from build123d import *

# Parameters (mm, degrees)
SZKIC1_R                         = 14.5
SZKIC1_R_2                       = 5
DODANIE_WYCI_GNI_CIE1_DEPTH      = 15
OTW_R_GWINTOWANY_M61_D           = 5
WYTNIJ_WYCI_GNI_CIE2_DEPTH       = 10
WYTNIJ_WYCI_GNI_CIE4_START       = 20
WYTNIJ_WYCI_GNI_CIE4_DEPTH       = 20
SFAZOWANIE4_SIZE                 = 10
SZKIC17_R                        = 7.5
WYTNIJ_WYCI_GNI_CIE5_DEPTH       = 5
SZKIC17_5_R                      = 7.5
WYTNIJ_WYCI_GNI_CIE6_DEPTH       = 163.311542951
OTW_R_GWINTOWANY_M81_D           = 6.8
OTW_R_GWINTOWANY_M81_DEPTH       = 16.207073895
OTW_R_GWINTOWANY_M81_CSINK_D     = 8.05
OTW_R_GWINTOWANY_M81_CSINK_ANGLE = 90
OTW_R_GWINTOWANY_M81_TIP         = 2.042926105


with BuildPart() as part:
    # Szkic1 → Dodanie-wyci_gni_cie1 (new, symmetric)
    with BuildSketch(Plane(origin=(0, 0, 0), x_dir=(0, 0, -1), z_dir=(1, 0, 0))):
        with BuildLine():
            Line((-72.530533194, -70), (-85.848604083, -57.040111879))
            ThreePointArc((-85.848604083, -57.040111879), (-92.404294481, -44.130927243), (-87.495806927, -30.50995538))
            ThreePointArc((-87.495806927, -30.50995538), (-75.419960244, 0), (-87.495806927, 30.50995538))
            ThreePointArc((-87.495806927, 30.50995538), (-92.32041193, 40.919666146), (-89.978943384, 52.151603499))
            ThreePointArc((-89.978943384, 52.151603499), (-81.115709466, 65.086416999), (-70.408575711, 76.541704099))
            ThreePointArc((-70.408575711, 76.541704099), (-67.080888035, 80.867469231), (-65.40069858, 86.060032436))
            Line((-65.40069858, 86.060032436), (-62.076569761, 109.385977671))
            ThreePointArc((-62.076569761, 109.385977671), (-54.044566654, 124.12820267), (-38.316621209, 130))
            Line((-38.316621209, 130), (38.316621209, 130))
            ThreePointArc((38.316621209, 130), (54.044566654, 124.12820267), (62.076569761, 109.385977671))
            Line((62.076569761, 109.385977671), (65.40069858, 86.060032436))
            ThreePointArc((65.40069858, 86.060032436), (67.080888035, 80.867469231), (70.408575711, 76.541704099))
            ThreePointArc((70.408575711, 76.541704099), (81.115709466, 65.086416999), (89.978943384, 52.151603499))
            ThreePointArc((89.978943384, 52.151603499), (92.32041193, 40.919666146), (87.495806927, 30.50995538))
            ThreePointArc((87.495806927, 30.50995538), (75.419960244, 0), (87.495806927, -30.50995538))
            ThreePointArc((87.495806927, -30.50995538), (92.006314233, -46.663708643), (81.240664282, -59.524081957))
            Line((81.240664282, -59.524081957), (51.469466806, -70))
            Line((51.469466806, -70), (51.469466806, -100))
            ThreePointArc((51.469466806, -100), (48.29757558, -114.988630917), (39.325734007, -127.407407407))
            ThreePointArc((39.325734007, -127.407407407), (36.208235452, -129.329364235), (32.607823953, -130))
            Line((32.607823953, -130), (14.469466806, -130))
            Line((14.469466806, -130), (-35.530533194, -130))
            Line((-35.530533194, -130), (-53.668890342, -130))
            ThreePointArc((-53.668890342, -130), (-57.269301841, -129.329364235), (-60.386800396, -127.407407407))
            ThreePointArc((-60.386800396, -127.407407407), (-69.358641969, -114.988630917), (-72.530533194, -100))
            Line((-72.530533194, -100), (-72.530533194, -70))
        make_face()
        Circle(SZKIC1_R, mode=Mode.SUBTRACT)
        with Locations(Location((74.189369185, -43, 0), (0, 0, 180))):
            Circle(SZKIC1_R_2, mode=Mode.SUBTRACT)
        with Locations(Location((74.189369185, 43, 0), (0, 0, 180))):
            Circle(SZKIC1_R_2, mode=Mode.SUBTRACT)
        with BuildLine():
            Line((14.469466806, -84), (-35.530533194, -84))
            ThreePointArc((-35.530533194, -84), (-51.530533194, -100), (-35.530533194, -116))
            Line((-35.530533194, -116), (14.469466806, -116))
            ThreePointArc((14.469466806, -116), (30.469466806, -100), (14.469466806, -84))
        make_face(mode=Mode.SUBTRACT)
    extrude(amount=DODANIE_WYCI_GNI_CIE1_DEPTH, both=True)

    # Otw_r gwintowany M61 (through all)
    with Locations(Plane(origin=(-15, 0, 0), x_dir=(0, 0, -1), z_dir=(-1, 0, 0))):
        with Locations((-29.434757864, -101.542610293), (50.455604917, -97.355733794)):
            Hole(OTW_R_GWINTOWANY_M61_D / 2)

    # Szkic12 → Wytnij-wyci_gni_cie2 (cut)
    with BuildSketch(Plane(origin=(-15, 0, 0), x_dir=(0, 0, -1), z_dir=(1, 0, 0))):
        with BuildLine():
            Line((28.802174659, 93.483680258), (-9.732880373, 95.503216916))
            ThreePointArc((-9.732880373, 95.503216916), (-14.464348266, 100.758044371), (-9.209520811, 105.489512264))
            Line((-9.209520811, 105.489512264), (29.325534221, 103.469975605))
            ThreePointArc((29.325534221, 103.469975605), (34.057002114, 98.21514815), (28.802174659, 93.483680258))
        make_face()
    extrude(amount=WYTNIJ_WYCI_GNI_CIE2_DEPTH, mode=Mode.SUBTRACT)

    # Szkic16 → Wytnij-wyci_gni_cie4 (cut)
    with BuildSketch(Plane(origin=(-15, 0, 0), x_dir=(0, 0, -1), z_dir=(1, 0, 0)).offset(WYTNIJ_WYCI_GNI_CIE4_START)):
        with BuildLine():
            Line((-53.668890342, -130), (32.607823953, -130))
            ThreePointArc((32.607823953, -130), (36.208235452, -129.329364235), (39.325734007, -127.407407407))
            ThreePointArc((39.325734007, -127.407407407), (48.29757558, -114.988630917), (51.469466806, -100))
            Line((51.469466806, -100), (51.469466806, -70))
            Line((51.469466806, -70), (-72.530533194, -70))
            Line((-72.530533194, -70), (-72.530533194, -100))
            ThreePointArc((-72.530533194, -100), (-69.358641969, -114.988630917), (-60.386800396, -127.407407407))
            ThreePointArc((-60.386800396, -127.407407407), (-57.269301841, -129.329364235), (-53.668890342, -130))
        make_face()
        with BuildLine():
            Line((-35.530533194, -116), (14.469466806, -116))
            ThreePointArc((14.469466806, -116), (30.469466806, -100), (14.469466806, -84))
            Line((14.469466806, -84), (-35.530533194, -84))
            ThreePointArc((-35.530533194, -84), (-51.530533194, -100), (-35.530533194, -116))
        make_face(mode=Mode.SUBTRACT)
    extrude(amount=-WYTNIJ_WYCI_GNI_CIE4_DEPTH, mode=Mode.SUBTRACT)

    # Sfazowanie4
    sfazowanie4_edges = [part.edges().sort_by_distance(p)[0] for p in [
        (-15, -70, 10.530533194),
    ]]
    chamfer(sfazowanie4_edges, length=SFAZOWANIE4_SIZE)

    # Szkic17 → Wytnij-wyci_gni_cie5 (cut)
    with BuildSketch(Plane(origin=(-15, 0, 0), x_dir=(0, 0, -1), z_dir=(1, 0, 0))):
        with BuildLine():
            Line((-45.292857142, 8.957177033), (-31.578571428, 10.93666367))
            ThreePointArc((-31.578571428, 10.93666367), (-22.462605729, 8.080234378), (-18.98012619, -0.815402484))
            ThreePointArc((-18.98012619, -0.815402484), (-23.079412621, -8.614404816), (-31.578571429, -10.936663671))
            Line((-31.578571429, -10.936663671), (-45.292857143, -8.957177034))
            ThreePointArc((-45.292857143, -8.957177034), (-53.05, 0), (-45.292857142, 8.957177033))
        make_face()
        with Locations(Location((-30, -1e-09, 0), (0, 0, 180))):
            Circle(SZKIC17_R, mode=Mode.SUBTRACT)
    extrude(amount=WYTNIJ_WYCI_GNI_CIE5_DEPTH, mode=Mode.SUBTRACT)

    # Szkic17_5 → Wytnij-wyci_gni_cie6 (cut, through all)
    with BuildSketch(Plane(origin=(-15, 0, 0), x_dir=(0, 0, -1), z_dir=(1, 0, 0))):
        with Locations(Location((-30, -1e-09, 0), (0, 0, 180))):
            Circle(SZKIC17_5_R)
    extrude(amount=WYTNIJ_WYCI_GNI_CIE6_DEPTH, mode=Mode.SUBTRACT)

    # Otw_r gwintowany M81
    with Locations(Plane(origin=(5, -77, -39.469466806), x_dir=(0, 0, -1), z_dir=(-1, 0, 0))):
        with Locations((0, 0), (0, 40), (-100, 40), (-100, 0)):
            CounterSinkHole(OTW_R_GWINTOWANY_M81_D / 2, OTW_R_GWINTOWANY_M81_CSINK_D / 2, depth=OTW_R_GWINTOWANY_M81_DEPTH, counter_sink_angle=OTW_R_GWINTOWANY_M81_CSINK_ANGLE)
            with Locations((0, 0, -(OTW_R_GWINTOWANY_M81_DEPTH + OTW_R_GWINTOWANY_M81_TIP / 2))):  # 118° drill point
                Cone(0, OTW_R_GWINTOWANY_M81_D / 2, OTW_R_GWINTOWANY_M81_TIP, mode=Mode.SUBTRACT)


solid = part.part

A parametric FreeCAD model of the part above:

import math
import FreeCAD as App
import Part
import Sketcher
Q = App.Units.Quantity


def edges_at(feature, points):
    """Names of the edges that pass closest to the given points."""
    edges = feature.Shape.Edges
    near = lambda p: min(range(len(edges)), key=lambda i: edges[i].distToShape(Part.Vertex(*p))[0])
    return sorted({f"Edge{near(p) + 1}" for p in points})

doc = App.newDocument("Part")
body = doc.addObject("PartDesign::Body", "Body")

sketch1 = body.newObject("Sketcher::SketchObject", "Sketch")
sketch1.AttachmentSupport = (doc.getObject("YZ_Plane"), [""])
sketch1.MapMode = "FlatFace"
sketch1.addGeometry([
    Part.LineSegment(App.Vector(-57, 86, 0), App.Vector(-70, 73, 0)),
    Part.LineSegment(App.Vector(-70, 73, 0), App.Vector(-100, 73, 0)),
    Part.ArcOfCircle(Part.Circle(App.Vector(-100, 36, 0), App.Vector(0, 0, 1), 37), math.radians(90), math.radians(138)),
    Part.ArcOfCircle(Part.Circle(App.Vector(-120, 54, 0), App.Vector(0, 0, 1), 10), math.radians(138), math.radians(180)),
    Part.LineSegment(App.Vector(-130, 54, 0), App.Vector(-130, -33, 0)),
    Part.ArcOfCircle(Part.Circle(App.Vector(-120, -33, 0), App.Vector(0, 0, 1), 10), math.radians(-180), math.radians(-138)),
    Part.ArcOfCircle(Part.Circle(App.Vector(-100, -14, 0), App.Vector(0, 0, 1), 37), math.radians(-138), math.radians(-90)),
    Part.LineSegment(App.Vector(-100, -51, 0), App.Vector(-70, -51, 0)),
    Part.LineSegment(App.Vector(-70, -51, 0), App.Vector(-60, -81, 0)),
    Part.ArcOfCircle(Part.Circle(App.Vector(-43, -74, 0), App.Vector(0, 0, 1), 18), math.radians(-158), math.radians(-47)),
    Part.ArcOfCircle(Part.Circle(App.Vector(0, -120, 0), App.Vector(0, 0, 1), 45), math.radians(47), math.radians(133)),
    Part.ArcOfCircle(Part.Circle(App.Vector(43, -74, 0), App.Vector(0, 0, 1), 18), math.radians(-133), math.radians(-60)),
    Part.ArcOfCircle(Part.Circle(App.Vector(0, 0, 0), App.Vector(0, 0, 1), 104), math.radians(-59.9), math.radians(-42.61)),
    Part.ArcOfCircle(Part.Circle(App.Vector(88, -81, 0), App.Vector(0, 0, 1), 16), math.radians(98), math.radians(137)),
    Part.LineSegment(App.Vector(86, -65, 0), App.Vector(109, -62, 0)),
    Part.ArcOfCircle(Part.Circle(App.Vector(106, -38, 0), App.Vector(0, 0, 1), 24), math.radians(-82), math.radians(0)),
    Part.LineSegment(App.Vector(130, -38, 0), App.Vector(130, 38, 0)),
    Part.ArcOfCircle(Part.Circle(App.Vector(106, 38, 0), App.Vector(0, 0, 1), 24), math.radians(0), math.radians(82)),
    Part.LineSegment(App.Vector(109, 62, 0), App.Vector(86, 65, 0)),
    Part.ArcOfCircle(Part.Circle(App.Vector(88, 81, 0), App.Vector(0, 0, 1), 16), math.radians(-137), math.radians(-98)),
    Part.ArcOfCircle(Part.Circle(App.Vector(0, 0, 0), App.Vector(0, 0, 1), 104), math.radians(42.61), math.radians(59.9)),
    Part.ArcOfCircle(Part.Circle(App.Vector(43, 74, 0), App.Vector(0, 0, 1), 18), math.radians(60), math.radians(133)),
    Part.ArcOfCircle(Part.Circle(App.Vector(0, 120, 0), App.Vector(0, 0, 1), 45), math.radians(-133), math.radians(-47)),
    Part.ArcOfCircle(Part.Circle(App.Vector(-43, 74, 0), App.Vector(0, 0, 1), 18), math.radians(47), math.radians(140)),
    Part.Circle(App.Vector(-43, -74, 0), App.Vector(0, 0, 1), 5),
    Part.ArcOfCircle(Part.Circle(App.Vector(-100, -14, 0), App.Vector(0, 0, 1), 16), math.radians(180), math.radians(360)),
    Part.LineSegment(App.Vector(-116, -14, 0), App.Vector(-116, 36, 0)),
    Part.ArcOfCircle(Part.Circle(App.Vector(-100, 36, 0), App.Vector(0, 0, 1), 16), math.radians(0), math.radians(180)),
    Part.LineSegment(App.Vector(-84, 36, 0), App.Vector(-84, -14, 0)),
    Part.Circle(App.Vector(43, -74, 0), App.Vector(0, 0, 1), 5),
    Part.Circle(App.Vector(0, 0, 0), App.Vector(0, 0, 1), 14),
], False)
sketch1.addConstraint([
    Sketcher.Constraint("Coincident", 0, 2, 1, 1),
    Sketcher.Constraint("Tangent", 1, 2, 2, 1),
    Sketcher.Constraint("Tangent", 2, 2, 3, 1),
    Sketcher.Constraint("Tangent", 3, 2, 4, 1),
    Sketcher.Constraint("Tangent", 4, 2, 5, 1),
    Sketcher.Constraint("Tangent", 5, 2, 6, 1),
    Sketcher.Constraint("Tangent", 6, 2, 7, 1),
    Sketcher.Constraint("Coincident", 7, 2, 8, 1),
    Sketcher.Constraint("Coincident", 8, 2, 9, 1),
    Sketcher.Constraint("Coincident", 9, 2, 10, 2),
    Sketcher.Constraint("Tangent", 10, 1, 11, 1),
    Sketcher.Constraint("Tangent", 11, 2, 12, 1),
    Sketcher.Constraint("Tangent", 12, 2, 13, 2),
    Sketcher.Constraint("Tangent", 13, 1, 14, 1),
    Sketcher.Constraint("Tangent", 14, 2, 15, 1),
    Sketcher.Constraint("Tangent", 15, 2, 16, 1),
    Sketcher.Constraint("Tangent", 16, 2, 17, 1),
    Sketcher.Constraint("Tangent", 17, 2, 18, 1),
    Sketcher.Constraint("Tangent", 18, 2, 19, 2),
    Sketcher.Constraint("Tangent", 19, 1, 20, 1),
    Sketcher.Constraint("Tangent", 20, 2, 21, 1),
    Sketcher.Constraint("Tangent", 21, 2, 22, 2),
    Sketcher.Constraint("Tangent", 22, 1, 23, 1),
    Sketcher.Constraint("Coincident", 23, 2, 0, 1),
    Sketcher.Constraint("Tangent", 25, 1, 26, 1),
    Sketcher.Constraint("Tangent", 26, 2, 27, 2),
    Sketcher.Constraint("Tangent", 27, 1, 28, 1),
    Sketcher.Constraint("Tangent", 28, 2, 25, 2),
    Sketcher.Constraint("Horizontal", 1),
    Sketcher.Constraint("Vertical", 4),
    Sketcher.Constraint("Horizontal", 7),
    Sketcher.Constraint("Vertical", 16),
    Sketcher.Constraint("Vertical", 26),
    Sketcher.Constraint("Vertical", 28),
    Sketcher.Constraint("Coincident", 12, 3, -1, 1),
    Sketcher.Constraint("Coincident", 20, 3, -1, 1),
    Sketcher.Constraint("Coincident", 30, 3, -1, 1),
    Sketcher.Constraint("Coincident", 25, 3, 6, 3),
    Sketcher.Constraint("Coincident", 27, 3, 2, 3),
    Sketcher.Constraint("Coincident", 29, 3, 11, 3),
    Sketcher.Constraint("Equal", 3, 5),
    Sketcher.Constraint("Equal", 2, 6),
    Sketcher.Constraint("Equal", 15, 17),
    Sketcher.Constraint("Equal", 13, 19),
    Sketcher.Constraint("Equal", 12, 20),
    Sketcher.Constraint("Equal", 11, 21),
    Sketcher.Constraint("Equal", 10, 22),
    Sketcher.Constraint("Equal", 21, 23),
    Sketcher.Constraint("Equal", 19, 25),
    Sketcher.Constraint("Equal", 24, 29),
    Sketcher.Constraint("Symmetric", 10, 3, 22, 3, -1, 1),
    Sketcher.Constraint("Symmetric", 21, 3, 24, 3, -1, 1),
    Sketcher.Constraint("Symmetric", 21, 3, 23, 3, -2),
    Sketcher.Constraint("Symmetric", 14, 2, 17, 2, -1),
    Sketcher.Constraint("Horizontal", 13, 3, 8, 2),
    Sketcher.Constraint("Horizontal", 9, 2, 10, 1),
    Sketcher.Constraint("Vertical", 0, 2, 7, 2),
    Sketcher.Constraint("Diameter", 24, Q("10 mm")),
    Sketcher.Constraint("Diameter", 30, Q("29 mm")),
    Sketcher.Constraint("Radius", 2, Q("37 mm")),
    Sketcher.Constraint("Radius", 3, Q("10 mm")),
    Sketcher.Constraint("Radius", 9, Q("18 mm")),
    Sketcher.Constraint("Radius", 12, Q("104 mm")),
    Sketcher.Constraint("Radius", 13, Q("16 mm")),
    Sketcher.Constraint("Radius", 15, Q("24 mm")),
    Sketcher.Constraint("DistanceX", 1, 2, 1, 1, Q("30 mm")),
    Sketcher.Constraint("DistanceY", 26, 1, 26, 2, Q("50 mm")),
    Sketcher.Constraint("Radius", 11, Q("18.25 mm")),
    Sketcher.Constraint("DistanceX", 2, 3, -1, 1, Q("100 mm")),
    Sketcher.Constraint("DistanceX", 3, 3, -1, 1, Q("120 mm")),
    Sketcher.Constraint("DistanceY", 10, 3, -1, 1, Q("120 mm")),
    Sketcher.Constraint("DistanceX", -1, 1, 11, 3, Q("43 mm")),
    Sketcher.Constraint("DistanceX", -1, 1, 15, 3, Q("106 mm")),
    Sketcher.Constraint("DistanceY", -1, 1, 2, 2, Q("60.3868 mm")),
    Sketcher.Constraint("DistanceY", 13, 1, -1, 1, Q("65.400699 mm")),
    Sketcher.Constraint("DistanceY", 17, 2, 21, 3, Q("12.112799 mm")),
    Sketcher.Constraint("Distance", 0, Q("18.583049 mm")),
    Sketcher.Constraint("Distance", 8, Q("31.560562 mm")),
])
pad1 = body.newObject("PartDesign::Pad", "Pad")
pad1.Profile = sketch1
pad1.Length = 30
pad1.Midplane = True

sketch2 = body.newObject("Sketcher::SketchObject", "Sketch001")
sketch2.AttachmentSupport = (doc.getObject("YZ_Plane"), [""])
sketch2.MapMode = "FlatFace"
sketch2.AttachmentOffset = App.Placement(App.Vector(0, 0, -15), App.Rotation())
sketch2.addGeometry([
    Part.Circle(App.Vector(101.5, 29.4, 0), App.Vector(0, 0, 1), 2.5),
    Part.Circle(App.Vector(97.4, -50.5, 0), App.Vector(0, 0, 1), 2.5),
], False)
sketch2.addConstraint([
    Sketcher.Constraint("Equal", 0, 1),
    Sketcher.Constraint("Diameter", 0, Q("5 mm")),
    Sketcher.Constraint("DistanceX", -1, 1, 0, 3, Q("101.54261 mm")),
    Sketcher.Constraint("DistanceY", -1, 1, 0, 3, Q("29.434758 mm")),
    Sketcher.Constraint("DistanceX", -1, 1, 1, 3, Q("97.355734 mm")),
    Sketcher.Constraint("DistanceY", 1, 3, -1, 1, Q("50.455605 mm")),
])
doc.recompute()
hole = body.newObject("PartDesign::Hole", "Hole")
hole.Profile = sketch2
hole.ThreadType = "None"
hole.Diameter = 5
hole.DepthType = "ThroughAll"
hole.Reversed = True

sketch3 = body.newObject("Sketcher::SketchObject", "Sketch002")
sketch3.AttachmentSupport = (doc.getObject("YZ_Plane"), [""])
sketch3.MapMode = "FlatFace"
sketch3.AttachmentOffset = App.Placement(App.Vector(0, 0, -15), App.Rotation())
sketch3.addGeometry([
    Part.LineSegment(App.Vector(96, 10, 0), App.Vector(93, -29, 0)),
    Part.ArcOfCircle(Part.Circle(App.Vector(98, -29, 0), App.Vector(0, 0, 1), 5), math.radians(177), math.radians(357)),
    Part.LineSegment(App.Vector(103, -29, 0), App.Vector(105, 9, 0)),
    Part.ArcOfCircle(Part.Circle(App.Vector(100, 9, 0), App.Vector(0, 0, 1), 5), math.radians(-3), math.radians(177)),
], False)
sketch3.addConstraint([
    Sketcher.Constraint("Tangent", 0, 2, 1, 1),
    Sketcher.Constraint("Tangent", 1, 2, 2, 1),
    Sketcher.Constraint("Tangent", 2, 2, 3, 1),
    Sketcher.Constraint("Tangent", 3, 2, 0, 1),
    Sketcher.Constraint("Equal", 1, 3),
    Sketcher.Constraint("Radius", 1, Q("5 mm")),
    Sketcher.Constraint("Angle", 0, Q("-93 deg")),
    Sketcher.Constraint("DistanceY", -1, 1, 3, 3, Q("9.471201 mm")),
    Sketcher.Constraint("Distance", 0, Q("38.587938 mm")),
    Sketcher.Constraint("DistanceX", -1, 1, 0, 2, Q("93.48368 mm")),
])
pocket1 = body.newObject("PartDesign::Pocket", "Pocket")
pocket1.Profile = sketch3
pocket1.Length = 10
pocket1.Reversed = True

sketch4 = body.newObject("Sketcher::SketchObject", "Sketch003")
sketch4.AttachmentSupport = (doc.getObject("YZ_Plane"), [""])
sketch4.MapMode = "FlatFace"
sketch4.AttachmentOffset = App.Placement(App.Vector(0, 0, 5), App.Rotation())
sketch4.addGeometry([
    Part.LineSegment(App.Vector(-130, 54, 0), App.Vector(-130, -33, 0)),
    Part.ArcOfCircle(Part.Circle(App.Vector(-120, -33, 0), App.Vector(0, 0, 1), 10), math.radians(-180), math.radians(-138)),
    Part.ArcOfCircle(Part.Circle(App.Vector(-100, -14, 0), App.Vector(0, 0, 1), 37), math.radians(-138), math.radians(-90)),
    Part.LineSegment(App.Vector(-100, -51, 0), App.Vector(-70, -51, 0)),
    Part.LineSegment(App.Vector(-70, -51, 0), App.Vector(-70, 73, 0)),
    Part.LineSegment(App.Vector(-70, 73, 0), App.Vector(-100, 73, 0)),
    Part.ArcOfCircle(Part.Circle(App.Vector(-100, 36, 0), App.Vector(0, 0, 1), 37), math.radians(90), math.radians(138)),
    Part.ArcOfCircle(Part.Circle(App.Vector(-120, 54, 0), App.Vector(0, 0, 1), 10), math.radians(138), math.radians(180)),
    Part.LineSegment(App.Vector(-116, -14, 0), App.Vector(-116, 36, 0)),
    Part.ArcOfCircle(Part.Circle(App.Vector(-100, 36, 0), App.Vector(0, 0, 1), 16), math.radians(0), math.radians(180)),
    Part.LineSegment(App.Vector(-84, 36, 0), App.Vector(-84, -14, 0)),
    Part.ArcOfCircle(Part.Circle(App.Vector(-100, -14, 0), App.Vector(0, 0, 1), 16), math.radians(180), math.radians(360)),
], False)
sketch4.addConstraint([
    Sketcher.Constraint("Tangent", 0, 2, 1, 1),
    Sketcher.Constraint("Tangent", 1, 2, 2, 1),
    Sketcher.Constraint("Tangent", 2, 2, 3, 1),
    Sketcher.Constraint("Coincident", 3, 2, 4, 1),
    Sketcher.Constraint("Coincident", 4, 2, 5, 1),
    Sketcher.Constraint("Tangent", 5, 2, 6, 1),
    Sketcher.Constraint("Tangent", 6, 2, 7, 1),
    Sketcher.Constraint("Tangent", 7, 2, 0, 1),
    Sketcher.Constraint("Tangent", 8, 2, 9, 2),
    Sketcher.Constraint("Tangent", 9, 1, 10, 1),
    Sketcher.Constraint("Tangent", 10, 2, 11, 2),
    Sketcher.Constraint("Tangent", 11, 1, 8, 1),
    Sketcher.Constraint("Vertical", 0),
    Sketcher.Constraint("Horizontal", 3),
    Sketcher.Constraint("Vertical", 4),
    Sketcher.Constraint("Horizontal", 5),
    Sketcher.Constraint("Vertical", 8),
    Sketcher.Constraint("Vertical", 10),
    Sketcher.Constraint("Coincident", 9, 3, 6, 3),
    Sketcher.Constraint("Coincident", 11, 3, 2, 3),
    Sketcher.Constraint("Equal", 2, 6),
    Sketcher.Constraint("Equal", 1, 7),
    Sketcher.Constraint("Radius", 1, Q("10 mm")),
    Sketcher.Constraint("Radius", 2, Q("37 mm")),
    Sketcher.Constraint("Radius", 9, Q("16 mm")),
    Sketcher.Constraint("DistanceX", 3, 1, 3, 2, Q("30 mm")),
    Sketcher.Constraint("DistanceY", 4, 1, 4, 2, Q("124 mm")),
    Sketcher.Constraint("DistanceX", 1, 3, -1, 1, Q("120 mm")),
    Sketcher.Constraint("DistanceX", 2, 3, -1, 1, Q("100 mm")),
    Sketcher.Constraint("DistanceY", -1, 1, 6, 2, Q("60.3868 mm")),
])
pocket2 = body.newObject("PartDesign::Pocket", "Pocket001")
pocket2.Profile = sketch4
pocket2.Length = 20
doc.recompute()

chamfer = body.newObject("PartDesign::Chamfer", "Chamfer")
chamfer.Base = (pocket2, edges_at(pocket2, [(-15, -70, 10.531)]))
chamfer.Size = 10

sketch5 = body.newObject("Sketcher::SketchObject", "Sketch004")
sketch5.AttachmentSupport = (doc.getObject("YZ_Plane"), [""])
sketch5.MapMode = "FlatFace"
sketch5.AttachmentOffset = App.Placement(App.Vector(0, 0, -15), App.Rotation())
sketch5.addGeometry([
    Part.LineSegment(App.Vector(11, 32, 0), App.Vector(9, 45, 0)),
    Part.ArcOfCircle(Part.Circle(App.Vector(0, 44, 0), App.Vector(0, 0, 1), 9), math.radians(8), math.radians(172)),
    Part.LineSegment(App.Vector(-9, 45, 0), App.Vector(-11, 32, 0)),
    Part.ArcOfCircle(Part.Circle(App.Vector(0, 30, 0), App.Vector(0, 0, 1), 11), math.radians(172), math.radians(266)),
    Part.ArcOfCircle(Part.Circle(App.Vector(0, 30, 0), App.Vector(0, 0, 1), 11), math.radians(-94), math.radians(8)),
    Part.Circle(App.Vector(0, 30, 0), App.Vector(0, 0, 1), 8),
], False)
sketch5.addConstraint([
    Sketcher.Constraint("Tangent", 0, 2, 1, 1),
    Sketcher.Constraint("Tangent", 1, 2, 2, 1),
    Sketcher.Constraint("Tangent", 2, 2, 3, 1),
    Sketcher.Constraint("Tangent", 3, 2, 4, 1),
    Sketcher.Constraint("Tangent", 4, 2, 0, 1),
    Sketcher.Constraint("Coincident", 5, 3, 3, 3),
    Sketcher.Constraint("Equal", 3, 4),
    Sketcher.Constraint("Symmetric", 0, 2, 1, 2, -2),
    Sketcher.Constraint("Diameter", 5, Q("15 mm")),
    Sketcher.Constraint("Radius", 1, Q("9.05 mm")),
    Sketcher.Constraint("Radius", 3, Q("11.05 mm")),
    Sketcher.Constraint("DistanceY", -1, 1, 1, 3, Q("44 mm")),
    Sketcher.Constraint("DistanceY", -1, 1, 3, 3, Q("30 mm")),
    Sketcher.Constraint("DistanceX", 2, 2, 3, 2, Q("10.121261 mm")),
])
pocket3 = body.newObject("PartDesign::Pocket", "Pocket002")
pocket3.Profile = sketch5
pocket3.Length = 5
pocket3.Reversed = True

sketch6 = body.newObject("Sketcher::SketchObject", "Sketch005")
sketch6.AttachmentSupport = (doc.getObject("YZ_Plane"), [""])
sketch6.MapMode = "FlatFace"
sketch6.AttachmentOffset = App.Placement(App.Vector(0, 0, -15), App.Rotation())
sketch6.addGeometry(Part.Circle(App.Vector(0, 30, 0), App.Vector(0, 0, 1), 8), False)
sketch6.addConstraint([
    Sketcher.Constraint("PointOnObject", 0, 3, -2),
    Sketcher.Constraint("Diameter", 0, Q("15 mm")),
    Sketcher.Constraint("DistanceY", -1, 1, 0, 3, Q("30 mm")),
])
pocket4 = body.newObject("PartDesign::Pocket", "Pocket003")
pocket4.Profile = sketch6
pocket4.Type = "ThroughAll"
pocket4.Reversed = True

sketch7 = body.newObject("Sketcher::SketchObject", "Sketch006")
sketch7.AttachmentSupport = (doc.getObject("YZ_Plane"), [""])
sketch7.MapMode = "FlatFace"
sketch7.AttachmentOffset = App.Placement(App.Vector(0, 0, 5), App.Rotation())
sketch7.addGeometry([
    Part.Circle(App.Vector(-77, -39.5, 0), App.Vector(0, 0, 1), 3.4),
    Part.Circle(App.Vector(-117, -39.5, 0), App.Vector(0, 0, 1), 3.4),
    Part.Circle(App.Vector(-117, 60.5, 0), App.Vector(0, 0, 1), 3.4),
    Part.Circle(App.Vector(-77, 60.5, 0), App.Vector(0, 0, 1), 3.4),
], False)
sketch7.addConstraint([
    Sketcher.Constraint("Equal", 0, 1),
    Sketcher.Constraint("Equal", 1, 2),
    Sketcher.Constraint("Equal", 2, 3),
    Sketcher.Constraint("Horizontal", 0, 3, 1, 3),
    Sketcher.Constraint("Horizontal", 2, 3, 3, 3),
    Sketcher.Constraint("Vertical", 1, 3, 2, 3),
    Sketcher.Constraint("Vertical", 0, 3, 3, 3),
    Sketcher.Constraint("Diameter", 0, Q("6.8 mm")),
    Sketcher.Constraint("DistanceX", 0, 3, -1, 1, Q("77 mm")),
    Sketcher.Constraint("DistanceX", 1, 3, -1, 1, Q("117 mm")),
    Sketcher.Constraint("DistanceY", 1, 3, 2, 3, Q("100 mm")),
    Sketcher.Constraint("DistanceY", 0, 3, -1, 1, Q("39.469467 mm")),
])
doc.recompute()
hole2 = body.newObject("PartDesign::Hole", "Hole001")
hole2.Profile = sketch7
hole2.ThreadType = "None"
hole2.Diameter = 6.8
hole2.DepthType = "Dimension"
hole2.Depth = 16.207074
hole2.DrillPoint = "Angled"
hole2.DrillPointAngle = 118
hole2.HoleCutType = "Countersink"
hole2.HoleCutDiameter = 8.05
hole2.HoleCutCountersinkAngle = 90
hole2.Reversed = True

doc.recompute()
